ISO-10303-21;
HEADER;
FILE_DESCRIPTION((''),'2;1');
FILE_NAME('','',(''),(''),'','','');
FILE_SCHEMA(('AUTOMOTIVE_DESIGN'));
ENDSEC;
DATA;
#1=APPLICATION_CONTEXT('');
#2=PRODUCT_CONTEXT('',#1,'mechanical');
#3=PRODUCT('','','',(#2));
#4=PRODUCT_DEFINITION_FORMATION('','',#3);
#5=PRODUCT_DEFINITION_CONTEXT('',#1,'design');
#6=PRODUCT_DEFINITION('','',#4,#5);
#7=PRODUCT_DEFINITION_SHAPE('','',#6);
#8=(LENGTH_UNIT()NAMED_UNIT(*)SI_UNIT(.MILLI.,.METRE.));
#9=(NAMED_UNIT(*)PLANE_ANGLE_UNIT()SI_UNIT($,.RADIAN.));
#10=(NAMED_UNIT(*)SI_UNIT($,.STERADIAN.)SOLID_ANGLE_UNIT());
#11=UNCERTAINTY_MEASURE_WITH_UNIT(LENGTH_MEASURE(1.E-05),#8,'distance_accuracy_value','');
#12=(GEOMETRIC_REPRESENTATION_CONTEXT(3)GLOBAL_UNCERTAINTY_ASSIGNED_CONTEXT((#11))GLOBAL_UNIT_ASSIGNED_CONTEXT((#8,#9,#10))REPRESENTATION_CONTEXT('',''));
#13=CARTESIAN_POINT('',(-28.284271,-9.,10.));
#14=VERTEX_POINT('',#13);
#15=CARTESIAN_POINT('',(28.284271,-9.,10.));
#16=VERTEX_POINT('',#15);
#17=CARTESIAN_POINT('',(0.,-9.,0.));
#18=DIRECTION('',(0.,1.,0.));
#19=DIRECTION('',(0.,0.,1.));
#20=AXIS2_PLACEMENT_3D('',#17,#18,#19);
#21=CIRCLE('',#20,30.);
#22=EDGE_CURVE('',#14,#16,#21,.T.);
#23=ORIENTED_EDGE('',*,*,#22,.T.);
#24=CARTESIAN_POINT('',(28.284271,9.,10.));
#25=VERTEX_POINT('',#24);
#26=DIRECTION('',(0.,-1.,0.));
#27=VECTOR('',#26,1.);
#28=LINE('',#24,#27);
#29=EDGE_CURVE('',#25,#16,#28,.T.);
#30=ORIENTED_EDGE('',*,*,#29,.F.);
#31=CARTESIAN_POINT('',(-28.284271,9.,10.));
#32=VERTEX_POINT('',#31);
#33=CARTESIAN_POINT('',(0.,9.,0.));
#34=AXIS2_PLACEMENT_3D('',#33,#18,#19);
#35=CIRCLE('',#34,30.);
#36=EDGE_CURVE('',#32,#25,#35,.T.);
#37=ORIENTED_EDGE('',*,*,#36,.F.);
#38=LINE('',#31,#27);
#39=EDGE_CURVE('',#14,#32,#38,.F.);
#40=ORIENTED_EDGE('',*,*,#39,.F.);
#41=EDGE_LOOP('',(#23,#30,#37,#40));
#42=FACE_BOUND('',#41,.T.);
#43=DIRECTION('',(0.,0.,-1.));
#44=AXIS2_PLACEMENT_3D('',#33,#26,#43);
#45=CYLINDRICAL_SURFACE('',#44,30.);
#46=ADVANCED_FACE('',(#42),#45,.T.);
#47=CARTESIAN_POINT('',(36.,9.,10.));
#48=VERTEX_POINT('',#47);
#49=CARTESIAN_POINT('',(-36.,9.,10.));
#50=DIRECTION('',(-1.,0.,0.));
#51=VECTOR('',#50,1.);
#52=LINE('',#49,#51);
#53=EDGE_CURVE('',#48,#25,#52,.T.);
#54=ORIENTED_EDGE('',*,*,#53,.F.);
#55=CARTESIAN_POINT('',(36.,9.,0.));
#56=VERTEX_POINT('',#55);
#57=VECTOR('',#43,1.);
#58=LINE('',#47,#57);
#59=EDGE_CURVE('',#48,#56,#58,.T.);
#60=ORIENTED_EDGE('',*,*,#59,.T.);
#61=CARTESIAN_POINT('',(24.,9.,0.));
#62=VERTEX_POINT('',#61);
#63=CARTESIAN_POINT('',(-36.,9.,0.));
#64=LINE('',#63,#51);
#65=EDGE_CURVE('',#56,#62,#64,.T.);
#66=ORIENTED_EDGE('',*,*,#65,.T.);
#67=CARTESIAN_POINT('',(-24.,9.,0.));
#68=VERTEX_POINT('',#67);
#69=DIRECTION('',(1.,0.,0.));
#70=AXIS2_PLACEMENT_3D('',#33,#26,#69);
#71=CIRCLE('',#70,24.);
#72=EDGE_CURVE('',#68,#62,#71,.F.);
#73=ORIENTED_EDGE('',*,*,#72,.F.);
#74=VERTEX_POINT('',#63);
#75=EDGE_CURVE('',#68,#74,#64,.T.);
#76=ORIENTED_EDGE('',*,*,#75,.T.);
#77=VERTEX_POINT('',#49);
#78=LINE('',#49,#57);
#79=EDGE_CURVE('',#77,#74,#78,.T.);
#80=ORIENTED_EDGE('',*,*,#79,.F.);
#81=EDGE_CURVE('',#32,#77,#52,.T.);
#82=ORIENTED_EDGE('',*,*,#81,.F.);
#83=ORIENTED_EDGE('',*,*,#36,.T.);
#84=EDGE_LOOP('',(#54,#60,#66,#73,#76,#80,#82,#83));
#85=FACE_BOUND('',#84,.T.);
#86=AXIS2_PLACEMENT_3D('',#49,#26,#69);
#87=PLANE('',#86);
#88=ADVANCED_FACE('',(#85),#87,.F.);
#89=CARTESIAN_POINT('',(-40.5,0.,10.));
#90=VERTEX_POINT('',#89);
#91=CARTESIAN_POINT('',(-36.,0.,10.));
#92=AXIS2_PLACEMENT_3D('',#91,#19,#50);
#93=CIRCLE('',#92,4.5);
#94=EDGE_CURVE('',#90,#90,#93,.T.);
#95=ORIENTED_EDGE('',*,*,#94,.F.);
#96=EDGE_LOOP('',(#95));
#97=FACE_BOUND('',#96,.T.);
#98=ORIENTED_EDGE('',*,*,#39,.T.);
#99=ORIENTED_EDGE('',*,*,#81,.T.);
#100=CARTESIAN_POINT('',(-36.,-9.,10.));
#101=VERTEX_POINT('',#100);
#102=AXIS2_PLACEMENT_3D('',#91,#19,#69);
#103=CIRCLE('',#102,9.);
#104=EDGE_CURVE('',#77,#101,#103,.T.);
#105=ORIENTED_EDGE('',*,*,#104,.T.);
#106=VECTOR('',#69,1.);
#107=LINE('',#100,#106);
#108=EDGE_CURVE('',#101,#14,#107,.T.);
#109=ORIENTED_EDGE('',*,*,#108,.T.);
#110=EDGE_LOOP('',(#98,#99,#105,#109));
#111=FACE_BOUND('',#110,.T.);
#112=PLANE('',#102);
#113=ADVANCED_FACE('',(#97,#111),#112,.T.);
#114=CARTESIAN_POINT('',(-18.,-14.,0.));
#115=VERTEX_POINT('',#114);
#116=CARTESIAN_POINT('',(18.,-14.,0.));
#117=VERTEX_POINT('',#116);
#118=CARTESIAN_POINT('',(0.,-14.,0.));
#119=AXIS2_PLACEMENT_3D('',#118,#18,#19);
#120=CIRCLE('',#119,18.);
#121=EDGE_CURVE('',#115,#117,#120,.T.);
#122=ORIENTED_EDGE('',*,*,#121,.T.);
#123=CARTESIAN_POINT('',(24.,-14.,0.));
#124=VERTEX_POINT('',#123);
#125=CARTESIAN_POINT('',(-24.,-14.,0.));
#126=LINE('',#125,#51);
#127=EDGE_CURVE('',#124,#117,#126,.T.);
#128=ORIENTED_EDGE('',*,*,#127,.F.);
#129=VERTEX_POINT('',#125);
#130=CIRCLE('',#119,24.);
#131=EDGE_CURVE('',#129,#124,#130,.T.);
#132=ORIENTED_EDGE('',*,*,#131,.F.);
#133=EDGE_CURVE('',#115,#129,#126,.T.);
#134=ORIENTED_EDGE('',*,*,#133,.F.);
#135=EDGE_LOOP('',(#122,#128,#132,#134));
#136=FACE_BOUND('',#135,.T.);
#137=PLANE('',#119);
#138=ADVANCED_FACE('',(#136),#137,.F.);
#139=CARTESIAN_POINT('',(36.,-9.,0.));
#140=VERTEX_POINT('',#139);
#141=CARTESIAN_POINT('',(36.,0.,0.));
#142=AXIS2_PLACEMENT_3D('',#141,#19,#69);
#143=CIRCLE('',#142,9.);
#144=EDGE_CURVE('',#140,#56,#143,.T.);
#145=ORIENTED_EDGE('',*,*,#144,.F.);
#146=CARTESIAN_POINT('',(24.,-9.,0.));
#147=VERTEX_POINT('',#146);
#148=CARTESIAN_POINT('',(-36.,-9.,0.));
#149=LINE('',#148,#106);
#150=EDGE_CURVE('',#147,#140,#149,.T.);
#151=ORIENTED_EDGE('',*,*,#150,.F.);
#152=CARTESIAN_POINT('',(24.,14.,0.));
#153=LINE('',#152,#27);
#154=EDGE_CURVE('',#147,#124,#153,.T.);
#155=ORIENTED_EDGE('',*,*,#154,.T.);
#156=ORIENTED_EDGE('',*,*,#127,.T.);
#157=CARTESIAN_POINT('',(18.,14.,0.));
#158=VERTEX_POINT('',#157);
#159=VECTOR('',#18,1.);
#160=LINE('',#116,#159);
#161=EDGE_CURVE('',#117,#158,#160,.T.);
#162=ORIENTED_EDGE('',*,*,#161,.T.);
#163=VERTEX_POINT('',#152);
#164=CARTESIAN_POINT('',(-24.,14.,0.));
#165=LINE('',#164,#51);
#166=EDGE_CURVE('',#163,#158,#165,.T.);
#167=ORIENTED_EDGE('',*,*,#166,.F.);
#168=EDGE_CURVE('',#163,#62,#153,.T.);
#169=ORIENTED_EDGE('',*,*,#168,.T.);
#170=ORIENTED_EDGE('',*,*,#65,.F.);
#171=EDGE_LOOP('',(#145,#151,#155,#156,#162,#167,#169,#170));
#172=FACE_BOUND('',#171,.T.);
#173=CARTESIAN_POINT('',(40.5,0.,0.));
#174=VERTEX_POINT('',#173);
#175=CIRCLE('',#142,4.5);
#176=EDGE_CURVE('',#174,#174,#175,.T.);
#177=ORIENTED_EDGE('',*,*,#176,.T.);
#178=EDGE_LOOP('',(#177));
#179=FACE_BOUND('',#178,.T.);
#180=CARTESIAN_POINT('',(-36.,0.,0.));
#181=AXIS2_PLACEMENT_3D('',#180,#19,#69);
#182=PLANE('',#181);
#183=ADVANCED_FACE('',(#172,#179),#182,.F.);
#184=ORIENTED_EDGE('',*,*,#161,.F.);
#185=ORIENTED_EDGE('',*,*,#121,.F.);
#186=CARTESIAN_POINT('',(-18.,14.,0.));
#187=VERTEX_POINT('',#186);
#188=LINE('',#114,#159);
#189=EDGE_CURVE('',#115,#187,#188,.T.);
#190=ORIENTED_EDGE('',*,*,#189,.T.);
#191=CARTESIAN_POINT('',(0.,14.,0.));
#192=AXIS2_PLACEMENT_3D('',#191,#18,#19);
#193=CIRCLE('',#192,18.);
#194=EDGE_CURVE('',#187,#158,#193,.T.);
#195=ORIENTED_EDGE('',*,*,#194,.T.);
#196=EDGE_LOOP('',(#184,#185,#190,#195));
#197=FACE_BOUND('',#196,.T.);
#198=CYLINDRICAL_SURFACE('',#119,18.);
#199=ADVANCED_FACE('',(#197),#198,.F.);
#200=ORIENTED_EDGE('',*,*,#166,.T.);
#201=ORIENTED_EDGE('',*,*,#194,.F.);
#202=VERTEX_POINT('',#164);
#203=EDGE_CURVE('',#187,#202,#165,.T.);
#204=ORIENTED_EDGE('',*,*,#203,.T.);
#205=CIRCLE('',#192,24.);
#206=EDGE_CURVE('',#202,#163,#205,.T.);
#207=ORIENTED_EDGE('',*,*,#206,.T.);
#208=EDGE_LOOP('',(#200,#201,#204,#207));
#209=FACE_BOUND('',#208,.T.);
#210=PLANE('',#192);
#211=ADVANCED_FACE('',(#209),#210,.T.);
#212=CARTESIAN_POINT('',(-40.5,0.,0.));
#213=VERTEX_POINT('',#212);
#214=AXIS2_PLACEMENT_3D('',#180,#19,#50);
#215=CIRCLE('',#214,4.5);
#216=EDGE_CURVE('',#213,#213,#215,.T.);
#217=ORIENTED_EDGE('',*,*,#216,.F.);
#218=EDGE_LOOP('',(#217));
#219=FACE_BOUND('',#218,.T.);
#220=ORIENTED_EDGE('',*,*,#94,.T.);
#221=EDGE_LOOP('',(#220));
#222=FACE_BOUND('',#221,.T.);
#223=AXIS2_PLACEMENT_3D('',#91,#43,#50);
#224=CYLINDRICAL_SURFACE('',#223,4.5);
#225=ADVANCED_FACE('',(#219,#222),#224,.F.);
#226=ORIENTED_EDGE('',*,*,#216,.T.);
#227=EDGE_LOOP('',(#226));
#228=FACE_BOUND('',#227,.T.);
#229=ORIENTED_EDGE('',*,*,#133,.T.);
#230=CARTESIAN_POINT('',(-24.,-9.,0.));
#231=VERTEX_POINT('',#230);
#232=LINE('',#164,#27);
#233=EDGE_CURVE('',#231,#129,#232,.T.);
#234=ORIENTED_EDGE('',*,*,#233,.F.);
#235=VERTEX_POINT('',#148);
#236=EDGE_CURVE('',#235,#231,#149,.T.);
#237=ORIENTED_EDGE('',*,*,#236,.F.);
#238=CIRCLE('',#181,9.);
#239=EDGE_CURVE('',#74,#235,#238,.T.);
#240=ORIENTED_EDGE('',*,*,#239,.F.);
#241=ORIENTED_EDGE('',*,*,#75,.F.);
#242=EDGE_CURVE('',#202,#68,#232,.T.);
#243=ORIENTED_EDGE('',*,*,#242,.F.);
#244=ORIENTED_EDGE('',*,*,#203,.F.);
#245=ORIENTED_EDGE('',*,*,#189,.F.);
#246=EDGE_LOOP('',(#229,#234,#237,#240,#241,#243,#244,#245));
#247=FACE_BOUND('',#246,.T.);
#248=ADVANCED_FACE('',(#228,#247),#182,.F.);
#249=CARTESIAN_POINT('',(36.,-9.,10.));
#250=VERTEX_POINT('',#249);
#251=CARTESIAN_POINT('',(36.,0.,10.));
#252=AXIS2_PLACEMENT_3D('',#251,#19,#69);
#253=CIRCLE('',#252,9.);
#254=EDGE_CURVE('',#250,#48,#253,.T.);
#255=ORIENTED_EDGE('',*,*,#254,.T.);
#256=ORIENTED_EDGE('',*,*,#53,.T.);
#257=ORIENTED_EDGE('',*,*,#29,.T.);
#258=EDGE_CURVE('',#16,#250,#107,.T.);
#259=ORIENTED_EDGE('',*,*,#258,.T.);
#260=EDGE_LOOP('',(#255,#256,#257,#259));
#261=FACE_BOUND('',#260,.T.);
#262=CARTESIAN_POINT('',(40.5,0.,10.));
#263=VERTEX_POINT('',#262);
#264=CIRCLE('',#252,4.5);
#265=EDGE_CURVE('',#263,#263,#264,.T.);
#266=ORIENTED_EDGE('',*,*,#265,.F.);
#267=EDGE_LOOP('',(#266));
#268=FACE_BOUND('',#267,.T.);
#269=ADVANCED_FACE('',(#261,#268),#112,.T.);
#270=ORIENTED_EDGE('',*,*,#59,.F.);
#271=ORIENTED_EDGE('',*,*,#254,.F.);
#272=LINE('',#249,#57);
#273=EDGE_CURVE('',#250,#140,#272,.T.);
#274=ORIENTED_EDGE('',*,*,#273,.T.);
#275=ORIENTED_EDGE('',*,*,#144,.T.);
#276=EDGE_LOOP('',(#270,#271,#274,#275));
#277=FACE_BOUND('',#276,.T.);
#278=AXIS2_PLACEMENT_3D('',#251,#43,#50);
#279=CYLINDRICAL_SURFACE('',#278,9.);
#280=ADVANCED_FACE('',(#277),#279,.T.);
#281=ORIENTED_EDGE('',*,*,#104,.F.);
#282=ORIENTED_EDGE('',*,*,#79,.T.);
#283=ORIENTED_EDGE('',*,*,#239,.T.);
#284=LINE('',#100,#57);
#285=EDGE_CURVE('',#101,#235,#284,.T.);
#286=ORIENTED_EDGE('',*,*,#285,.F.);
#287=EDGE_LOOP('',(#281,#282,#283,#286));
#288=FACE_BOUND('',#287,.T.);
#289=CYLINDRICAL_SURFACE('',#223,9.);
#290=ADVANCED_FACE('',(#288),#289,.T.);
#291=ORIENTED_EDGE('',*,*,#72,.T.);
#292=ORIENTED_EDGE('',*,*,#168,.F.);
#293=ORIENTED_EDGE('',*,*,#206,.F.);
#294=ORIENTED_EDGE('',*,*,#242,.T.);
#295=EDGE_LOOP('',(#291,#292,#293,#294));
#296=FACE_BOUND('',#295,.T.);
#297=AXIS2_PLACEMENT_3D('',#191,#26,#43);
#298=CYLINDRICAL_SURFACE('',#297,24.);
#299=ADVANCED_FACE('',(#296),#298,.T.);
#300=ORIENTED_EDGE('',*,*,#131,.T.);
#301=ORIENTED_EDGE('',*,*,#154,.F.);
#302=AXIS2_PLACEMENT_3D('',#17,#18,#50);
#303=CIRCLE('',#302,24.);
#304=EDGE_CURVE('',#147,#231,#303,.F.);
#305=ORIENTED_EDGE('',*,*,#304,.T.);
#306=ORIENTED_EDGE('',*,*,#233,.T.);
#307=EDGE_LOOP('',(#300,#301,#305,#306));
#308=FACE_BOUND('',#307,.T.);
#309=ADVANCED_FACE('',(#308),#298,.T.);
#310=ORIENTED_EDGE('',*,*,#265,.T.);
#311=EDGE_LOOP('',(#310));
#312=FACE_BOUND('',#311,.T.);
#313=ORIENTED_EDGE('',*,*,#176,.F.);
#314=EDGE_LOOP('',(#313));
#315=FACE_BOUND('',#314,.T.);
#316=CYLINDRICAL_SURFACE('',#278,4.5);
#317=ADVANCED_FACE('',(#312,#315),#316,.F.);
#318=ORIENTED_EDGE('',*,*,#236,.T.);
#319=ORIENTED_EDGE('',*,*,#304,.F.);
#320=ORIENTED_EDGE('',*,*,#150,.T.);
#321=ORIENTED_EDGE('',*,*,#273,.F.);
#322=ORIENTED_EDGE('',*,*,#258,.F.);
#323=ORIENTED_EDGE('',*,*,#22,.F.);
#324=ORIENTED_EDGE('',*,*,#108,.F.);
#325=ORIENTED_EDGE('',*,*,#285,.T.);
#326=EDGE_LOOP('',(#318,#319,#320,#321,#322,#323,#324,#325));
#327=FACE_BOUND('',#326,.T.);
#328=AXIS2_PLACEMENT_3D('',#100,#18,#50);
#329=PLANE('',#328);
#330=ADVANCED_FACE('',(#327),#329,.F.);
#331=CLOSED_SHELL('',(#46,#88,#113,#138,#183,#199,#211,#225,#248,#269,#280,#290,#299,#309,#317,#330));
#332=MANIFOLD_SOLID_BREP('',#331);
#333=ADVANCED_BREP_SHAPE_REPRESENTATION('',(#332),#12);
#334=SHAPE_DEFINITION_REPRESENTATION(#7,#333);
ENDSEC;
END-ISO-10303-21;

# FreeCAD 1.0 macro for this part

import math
import FreeCAD as App
import Part
import Sketcher
from FreeCAD import Vector
Q = App.Units.Quantity

doc = App.newDocument("Part")
body = doc.addObject("PartDesign::Body", "Body")

# Sketch on XY plane
sketch1 = doc.addObject("Sketcher::SketchObject", "Sketch")
body.addObject(sketch1)
sketch1.AttachmentSupport = (doc.XY_Plane, [""])
sketch1.MapMode = "FlatFace"
sketch1.addGeometry([
    Part.LineSegment(Vector(36, 9, 0), Vector(-36, 9, 0)),  # 0
    Part.ArcOfCircle(Part.Circle(Vector(-36, 0, 0), Vector(0, 0, 1), 9), math.radians(90), math.radians(270)),  # 1
    Part.LineSegment(Vector(-36, -9, 0), Vector(36, -9, 0)),  # 2
    Part.ArcOfCircle(Part.Circle(Vector(36, 0, 0), Vector(0, 0, 1), 9), math.radians(-90), math.radians(90)),  # 3
    Part.Circle(Vector(36, 0, 0), Vector(0, 0, 1), 4.5),  # 4
    Part.Circle(Vector(-36, 0, 0), Vector(0, 0, 1), 4.5),  # 5
], False)
sketch1.addConstraint([
    Sketcher.Constraint("Tangent", 0, 2, 1, 1),
    Sketcher.Constraint("Tangent", 1, 2, 2, 1),
    Sketcher.Constraint("Tangent", 2, 2, 3, 1),
    Sketcher.Constraint("Tangent", 3, 2, 0, 1),
    Sketcher.Constraint("Horizontal", 0),
    Sketcher.Constraint("Horizontal", 2),
    Sketcher.Constraint("Coincident", 4, 3, 3, 3),
    Sketcher.Constraint("Coincident", 5, 3, 1, 3),
    Sketcher.Constraint("Equal", 4, 5),
    Sketcher.Constraint("Symmetric", 1, 3, 3, 3, -1, 1),
    Sketcher.Constraint("Diameter", 4, Q("9 mm")),
    Sketcher.Constraint("Radius", 1, Q("9 mm")),
    Sketcher.Constraint("DistanceX", 0, 2, 0, 1, Q("72 mm")),
])
pad1 = doc.addObject("PartDesign::Pad", "Pad")
body.addObject(pad1)
pad1.Profile = sketch1
pad1.Length = 10

# Sketch on XZ plane
sketch2 = doc.addObject("Sketcher::SketchObject", "Sketch001")
body.addObject(sketch2)
sketch2.AttachmentSupport = (doc.XZ_Plane, [""])
sketch2.MapMode = "FlatFace"
sketch2.addGeometry([
    Part.LineSegment(Vector(30, 0, 0), Vector(-30, 0, 0)),
    Part.ArcOfCircle(Part.Circle(Vector(0, 0, 0), Vector(0, 0, 1), 30), math.radians(0), math.radians(180)),
], False)
sketch2.addConstraint([
    Sketcher.Constraint("Coincident", 0, 1, 1, 1),
    Sketcher.Constraint("Coincident", 1, 2, 0, 2),
    Sketcher.Constraint("Horizontal", 0),
    Sketcher.Constraint("Coincident", 1, 3, -1, 1),
    Sketcher.Constraint("PointOnObject", 0, 1, -1),
    Sketcher.Constraint("Radius", 1, Q("30 mm")),
])
pad2 = doc.addObject("PartDesign::Pad", "Pad001")
body.addObject(pad2)
pad2.Profile = sketch2
pad2.Length = 18
pad2.Midplane = True

# Sketch on XZ plane
sketch3 = doc.addObject("Sketcher::SketchObject", "Sketch002")
body.addObject(sketch3)
sketch3.AttachmentSupport = (doc.XZ_Plane, [""])
sketch3.MapMode = "FlatFace"
sketch3.addGeometry([
    Part.LineSegment(Vector(24, 0, 0), Vector(-24, 0, 0)),
    Part.ArcOfCircle(Part.Circle(Vector(0, 0, 0), Vector(0, 0, 1), 24), math.radians(0), math.radians(180)),
], False)
sketch3.addConstraint([
    Sketcher.Constraint("Coincident", 0, 1, 1, 1),
    Sketcher.Constraint("Coincident", 1, 2, 0, 2),
    Sketcher.Constraint("Horizontal", 0),
    Sketcher.Constraint("Coincident", 1, 3, -1, 1),
    Sketcher.Constraint("PointOnObject", 0, 1, -1),
    Sketcher.Constraint("Radius", 1, Q("24 mm")),
])
pad3 = doc.addObject("PartDesign::Pad", "Pad002")
body.addObject(pad3)
pad3.Profile = sketch3
pad3.Length = 28
pad3.Midplane = True

# Sketch on XZ plane
sketch4 = doc.addObject("Sketcher::SketchObject", "Sketch003")
body.addObject(sketch4)
sketch4.AttachmentSupport = (doc.XZ_Plane, [""])
sketch4.MapMode = "FlatFace"
sketch4.AttachmentOffset = App.Placement(Vector(0, 0, -14), App.Rotation())
sketch4.addGeometry([
    Part.LineSegment(Vector(18, 0, 0), Vector(-18, 0, 0)),
    Part.ArcOfCircle(Part.Circle(Vector(0, 0, 0), Vector(0, 0, 1), 18), math.radians(0), math.radians(180)),
], False)
sketch4.addConstraint([
    Sketcher.Constraint("Coincident", 0, 1, 1, 1),
    Sketcher.Constraint("Coincident", 1, 2, 0, 2),
    Sketcher.Constraint("Horizontal", 0),
    Sketcher.Constraint("Coincident", 1, 3, -1, 1),
    Sketcher.Constraint("PointOnObject", 0, 1, -1),
    Sketcher.Constraint("Radius", 1, Q("18 mm")),
])
pocket1 = doc.addObject("PartDesign::Pocket", "Pocket")
body.addObject(pocket1)
pocket1.Profile = sketch4
pocket1.Type = "ThroughAll"
pocket1.Reversed = True

doc.recompute()
